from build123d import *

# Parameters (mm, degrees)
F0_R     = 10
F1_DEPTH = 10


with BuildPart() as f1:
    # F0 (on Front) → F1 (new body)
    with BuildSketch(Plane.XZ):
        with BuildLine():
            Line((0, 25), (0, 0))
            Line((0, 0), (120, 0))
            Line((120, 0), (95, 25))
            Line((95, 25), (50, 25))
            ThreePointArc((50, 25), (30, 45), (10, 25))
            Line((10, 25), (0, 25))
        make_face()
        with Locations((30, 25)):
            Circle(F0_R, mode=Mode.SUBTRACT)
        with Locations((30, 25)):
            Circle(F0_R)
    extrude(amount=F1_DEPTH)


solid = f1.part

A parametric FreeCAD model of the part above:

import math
import FreeCAD as App
import Part
import Sketcher

V = App.Vector

doc = App.newDocument("Part")
body = doc.addObject("PartDesign::Body", "Body")

# Sketch on XZ plane
sketch1 = body.newObject("Sketcher::SketchObject", "Sketch")
sketch1.AttachmentSupport = (doc.getObject("XZ_Plane"), [""])
sketch1.MapMode = "FlatFace"
sketch1.addGeometry([
    Part.LineSegment(V(0, 25, 0), V(0, 0, 0)),  # 0
    Part.LineSegment(V(0, 0, 0), V(120, 0, 0)),  # 1
    Part.LineSegment(V(120, 0, 0), V(95, 25, 0)),  # 2
    Part.LineSegment(V(95, 25, 0), V(50, 25, 0)),  # 3
    Part.ArcOfCircle(Part.Circle(V(30, 25, 0), V(0, 0, 1), 20), math.radians(0), math.radians(180)),  # 4
    Part.LineSegment(V(10, 25, 0), V(0, 25, 0)),  # 5
], False)
sketch1.addConstraint([
    Sketcher.Constraint("Coincident", 0, 2, 1, 1),
    Sketcher.Constraint("Coincident", 1, 2, 2, 1),
    Sketcher.Constraint("Coincident", 2, 2, 3, 1),
    Sketcher.Constraint("Coincident", 3, 2, 4, 1),
    Sketcher.Constraint("Coincident", 4, 2, 5, 1),
    Sketcher.Constraint("Coincident", 5, 2, 0, 1),
    Sketcher.Constraint("Vertical", 0),
    Sketcher.Constraint("Horizontal", 1),
    Sketcher.Constraint("Horizontal", 3),
    Sketcher.Constraint("Horizontal", 5),
    Sketcher.Constraint("Coincident", 0, 2, -1, 1),
    Sketcher.Constraint("Horizontal", 4, 3, 2, 2),
    Sketcher.Constraint("Horizontal", 3, 2, 4, 2),
    Sketcher.Constraint("Radius", 4, 20.0),
    Sketcher.Constraint("DistanceX", 1, 1, 1, 2, 120.0),
    Sketcher.Constraint("DistanceX", 3, 2, 3, 1, 45.0),
    Sketcher.Constraint("DistanceX", 5, 2, 5, 1, 10.0),
    Sketcher.Constraint("DistanceY", 0, 2, 0, 1, 25.0),
])
pad1 = body.newObject("PartDesign::Pad", "Pad")
pad1.Profile = sketch1
pad1.Length = 10

doc.recompute()
